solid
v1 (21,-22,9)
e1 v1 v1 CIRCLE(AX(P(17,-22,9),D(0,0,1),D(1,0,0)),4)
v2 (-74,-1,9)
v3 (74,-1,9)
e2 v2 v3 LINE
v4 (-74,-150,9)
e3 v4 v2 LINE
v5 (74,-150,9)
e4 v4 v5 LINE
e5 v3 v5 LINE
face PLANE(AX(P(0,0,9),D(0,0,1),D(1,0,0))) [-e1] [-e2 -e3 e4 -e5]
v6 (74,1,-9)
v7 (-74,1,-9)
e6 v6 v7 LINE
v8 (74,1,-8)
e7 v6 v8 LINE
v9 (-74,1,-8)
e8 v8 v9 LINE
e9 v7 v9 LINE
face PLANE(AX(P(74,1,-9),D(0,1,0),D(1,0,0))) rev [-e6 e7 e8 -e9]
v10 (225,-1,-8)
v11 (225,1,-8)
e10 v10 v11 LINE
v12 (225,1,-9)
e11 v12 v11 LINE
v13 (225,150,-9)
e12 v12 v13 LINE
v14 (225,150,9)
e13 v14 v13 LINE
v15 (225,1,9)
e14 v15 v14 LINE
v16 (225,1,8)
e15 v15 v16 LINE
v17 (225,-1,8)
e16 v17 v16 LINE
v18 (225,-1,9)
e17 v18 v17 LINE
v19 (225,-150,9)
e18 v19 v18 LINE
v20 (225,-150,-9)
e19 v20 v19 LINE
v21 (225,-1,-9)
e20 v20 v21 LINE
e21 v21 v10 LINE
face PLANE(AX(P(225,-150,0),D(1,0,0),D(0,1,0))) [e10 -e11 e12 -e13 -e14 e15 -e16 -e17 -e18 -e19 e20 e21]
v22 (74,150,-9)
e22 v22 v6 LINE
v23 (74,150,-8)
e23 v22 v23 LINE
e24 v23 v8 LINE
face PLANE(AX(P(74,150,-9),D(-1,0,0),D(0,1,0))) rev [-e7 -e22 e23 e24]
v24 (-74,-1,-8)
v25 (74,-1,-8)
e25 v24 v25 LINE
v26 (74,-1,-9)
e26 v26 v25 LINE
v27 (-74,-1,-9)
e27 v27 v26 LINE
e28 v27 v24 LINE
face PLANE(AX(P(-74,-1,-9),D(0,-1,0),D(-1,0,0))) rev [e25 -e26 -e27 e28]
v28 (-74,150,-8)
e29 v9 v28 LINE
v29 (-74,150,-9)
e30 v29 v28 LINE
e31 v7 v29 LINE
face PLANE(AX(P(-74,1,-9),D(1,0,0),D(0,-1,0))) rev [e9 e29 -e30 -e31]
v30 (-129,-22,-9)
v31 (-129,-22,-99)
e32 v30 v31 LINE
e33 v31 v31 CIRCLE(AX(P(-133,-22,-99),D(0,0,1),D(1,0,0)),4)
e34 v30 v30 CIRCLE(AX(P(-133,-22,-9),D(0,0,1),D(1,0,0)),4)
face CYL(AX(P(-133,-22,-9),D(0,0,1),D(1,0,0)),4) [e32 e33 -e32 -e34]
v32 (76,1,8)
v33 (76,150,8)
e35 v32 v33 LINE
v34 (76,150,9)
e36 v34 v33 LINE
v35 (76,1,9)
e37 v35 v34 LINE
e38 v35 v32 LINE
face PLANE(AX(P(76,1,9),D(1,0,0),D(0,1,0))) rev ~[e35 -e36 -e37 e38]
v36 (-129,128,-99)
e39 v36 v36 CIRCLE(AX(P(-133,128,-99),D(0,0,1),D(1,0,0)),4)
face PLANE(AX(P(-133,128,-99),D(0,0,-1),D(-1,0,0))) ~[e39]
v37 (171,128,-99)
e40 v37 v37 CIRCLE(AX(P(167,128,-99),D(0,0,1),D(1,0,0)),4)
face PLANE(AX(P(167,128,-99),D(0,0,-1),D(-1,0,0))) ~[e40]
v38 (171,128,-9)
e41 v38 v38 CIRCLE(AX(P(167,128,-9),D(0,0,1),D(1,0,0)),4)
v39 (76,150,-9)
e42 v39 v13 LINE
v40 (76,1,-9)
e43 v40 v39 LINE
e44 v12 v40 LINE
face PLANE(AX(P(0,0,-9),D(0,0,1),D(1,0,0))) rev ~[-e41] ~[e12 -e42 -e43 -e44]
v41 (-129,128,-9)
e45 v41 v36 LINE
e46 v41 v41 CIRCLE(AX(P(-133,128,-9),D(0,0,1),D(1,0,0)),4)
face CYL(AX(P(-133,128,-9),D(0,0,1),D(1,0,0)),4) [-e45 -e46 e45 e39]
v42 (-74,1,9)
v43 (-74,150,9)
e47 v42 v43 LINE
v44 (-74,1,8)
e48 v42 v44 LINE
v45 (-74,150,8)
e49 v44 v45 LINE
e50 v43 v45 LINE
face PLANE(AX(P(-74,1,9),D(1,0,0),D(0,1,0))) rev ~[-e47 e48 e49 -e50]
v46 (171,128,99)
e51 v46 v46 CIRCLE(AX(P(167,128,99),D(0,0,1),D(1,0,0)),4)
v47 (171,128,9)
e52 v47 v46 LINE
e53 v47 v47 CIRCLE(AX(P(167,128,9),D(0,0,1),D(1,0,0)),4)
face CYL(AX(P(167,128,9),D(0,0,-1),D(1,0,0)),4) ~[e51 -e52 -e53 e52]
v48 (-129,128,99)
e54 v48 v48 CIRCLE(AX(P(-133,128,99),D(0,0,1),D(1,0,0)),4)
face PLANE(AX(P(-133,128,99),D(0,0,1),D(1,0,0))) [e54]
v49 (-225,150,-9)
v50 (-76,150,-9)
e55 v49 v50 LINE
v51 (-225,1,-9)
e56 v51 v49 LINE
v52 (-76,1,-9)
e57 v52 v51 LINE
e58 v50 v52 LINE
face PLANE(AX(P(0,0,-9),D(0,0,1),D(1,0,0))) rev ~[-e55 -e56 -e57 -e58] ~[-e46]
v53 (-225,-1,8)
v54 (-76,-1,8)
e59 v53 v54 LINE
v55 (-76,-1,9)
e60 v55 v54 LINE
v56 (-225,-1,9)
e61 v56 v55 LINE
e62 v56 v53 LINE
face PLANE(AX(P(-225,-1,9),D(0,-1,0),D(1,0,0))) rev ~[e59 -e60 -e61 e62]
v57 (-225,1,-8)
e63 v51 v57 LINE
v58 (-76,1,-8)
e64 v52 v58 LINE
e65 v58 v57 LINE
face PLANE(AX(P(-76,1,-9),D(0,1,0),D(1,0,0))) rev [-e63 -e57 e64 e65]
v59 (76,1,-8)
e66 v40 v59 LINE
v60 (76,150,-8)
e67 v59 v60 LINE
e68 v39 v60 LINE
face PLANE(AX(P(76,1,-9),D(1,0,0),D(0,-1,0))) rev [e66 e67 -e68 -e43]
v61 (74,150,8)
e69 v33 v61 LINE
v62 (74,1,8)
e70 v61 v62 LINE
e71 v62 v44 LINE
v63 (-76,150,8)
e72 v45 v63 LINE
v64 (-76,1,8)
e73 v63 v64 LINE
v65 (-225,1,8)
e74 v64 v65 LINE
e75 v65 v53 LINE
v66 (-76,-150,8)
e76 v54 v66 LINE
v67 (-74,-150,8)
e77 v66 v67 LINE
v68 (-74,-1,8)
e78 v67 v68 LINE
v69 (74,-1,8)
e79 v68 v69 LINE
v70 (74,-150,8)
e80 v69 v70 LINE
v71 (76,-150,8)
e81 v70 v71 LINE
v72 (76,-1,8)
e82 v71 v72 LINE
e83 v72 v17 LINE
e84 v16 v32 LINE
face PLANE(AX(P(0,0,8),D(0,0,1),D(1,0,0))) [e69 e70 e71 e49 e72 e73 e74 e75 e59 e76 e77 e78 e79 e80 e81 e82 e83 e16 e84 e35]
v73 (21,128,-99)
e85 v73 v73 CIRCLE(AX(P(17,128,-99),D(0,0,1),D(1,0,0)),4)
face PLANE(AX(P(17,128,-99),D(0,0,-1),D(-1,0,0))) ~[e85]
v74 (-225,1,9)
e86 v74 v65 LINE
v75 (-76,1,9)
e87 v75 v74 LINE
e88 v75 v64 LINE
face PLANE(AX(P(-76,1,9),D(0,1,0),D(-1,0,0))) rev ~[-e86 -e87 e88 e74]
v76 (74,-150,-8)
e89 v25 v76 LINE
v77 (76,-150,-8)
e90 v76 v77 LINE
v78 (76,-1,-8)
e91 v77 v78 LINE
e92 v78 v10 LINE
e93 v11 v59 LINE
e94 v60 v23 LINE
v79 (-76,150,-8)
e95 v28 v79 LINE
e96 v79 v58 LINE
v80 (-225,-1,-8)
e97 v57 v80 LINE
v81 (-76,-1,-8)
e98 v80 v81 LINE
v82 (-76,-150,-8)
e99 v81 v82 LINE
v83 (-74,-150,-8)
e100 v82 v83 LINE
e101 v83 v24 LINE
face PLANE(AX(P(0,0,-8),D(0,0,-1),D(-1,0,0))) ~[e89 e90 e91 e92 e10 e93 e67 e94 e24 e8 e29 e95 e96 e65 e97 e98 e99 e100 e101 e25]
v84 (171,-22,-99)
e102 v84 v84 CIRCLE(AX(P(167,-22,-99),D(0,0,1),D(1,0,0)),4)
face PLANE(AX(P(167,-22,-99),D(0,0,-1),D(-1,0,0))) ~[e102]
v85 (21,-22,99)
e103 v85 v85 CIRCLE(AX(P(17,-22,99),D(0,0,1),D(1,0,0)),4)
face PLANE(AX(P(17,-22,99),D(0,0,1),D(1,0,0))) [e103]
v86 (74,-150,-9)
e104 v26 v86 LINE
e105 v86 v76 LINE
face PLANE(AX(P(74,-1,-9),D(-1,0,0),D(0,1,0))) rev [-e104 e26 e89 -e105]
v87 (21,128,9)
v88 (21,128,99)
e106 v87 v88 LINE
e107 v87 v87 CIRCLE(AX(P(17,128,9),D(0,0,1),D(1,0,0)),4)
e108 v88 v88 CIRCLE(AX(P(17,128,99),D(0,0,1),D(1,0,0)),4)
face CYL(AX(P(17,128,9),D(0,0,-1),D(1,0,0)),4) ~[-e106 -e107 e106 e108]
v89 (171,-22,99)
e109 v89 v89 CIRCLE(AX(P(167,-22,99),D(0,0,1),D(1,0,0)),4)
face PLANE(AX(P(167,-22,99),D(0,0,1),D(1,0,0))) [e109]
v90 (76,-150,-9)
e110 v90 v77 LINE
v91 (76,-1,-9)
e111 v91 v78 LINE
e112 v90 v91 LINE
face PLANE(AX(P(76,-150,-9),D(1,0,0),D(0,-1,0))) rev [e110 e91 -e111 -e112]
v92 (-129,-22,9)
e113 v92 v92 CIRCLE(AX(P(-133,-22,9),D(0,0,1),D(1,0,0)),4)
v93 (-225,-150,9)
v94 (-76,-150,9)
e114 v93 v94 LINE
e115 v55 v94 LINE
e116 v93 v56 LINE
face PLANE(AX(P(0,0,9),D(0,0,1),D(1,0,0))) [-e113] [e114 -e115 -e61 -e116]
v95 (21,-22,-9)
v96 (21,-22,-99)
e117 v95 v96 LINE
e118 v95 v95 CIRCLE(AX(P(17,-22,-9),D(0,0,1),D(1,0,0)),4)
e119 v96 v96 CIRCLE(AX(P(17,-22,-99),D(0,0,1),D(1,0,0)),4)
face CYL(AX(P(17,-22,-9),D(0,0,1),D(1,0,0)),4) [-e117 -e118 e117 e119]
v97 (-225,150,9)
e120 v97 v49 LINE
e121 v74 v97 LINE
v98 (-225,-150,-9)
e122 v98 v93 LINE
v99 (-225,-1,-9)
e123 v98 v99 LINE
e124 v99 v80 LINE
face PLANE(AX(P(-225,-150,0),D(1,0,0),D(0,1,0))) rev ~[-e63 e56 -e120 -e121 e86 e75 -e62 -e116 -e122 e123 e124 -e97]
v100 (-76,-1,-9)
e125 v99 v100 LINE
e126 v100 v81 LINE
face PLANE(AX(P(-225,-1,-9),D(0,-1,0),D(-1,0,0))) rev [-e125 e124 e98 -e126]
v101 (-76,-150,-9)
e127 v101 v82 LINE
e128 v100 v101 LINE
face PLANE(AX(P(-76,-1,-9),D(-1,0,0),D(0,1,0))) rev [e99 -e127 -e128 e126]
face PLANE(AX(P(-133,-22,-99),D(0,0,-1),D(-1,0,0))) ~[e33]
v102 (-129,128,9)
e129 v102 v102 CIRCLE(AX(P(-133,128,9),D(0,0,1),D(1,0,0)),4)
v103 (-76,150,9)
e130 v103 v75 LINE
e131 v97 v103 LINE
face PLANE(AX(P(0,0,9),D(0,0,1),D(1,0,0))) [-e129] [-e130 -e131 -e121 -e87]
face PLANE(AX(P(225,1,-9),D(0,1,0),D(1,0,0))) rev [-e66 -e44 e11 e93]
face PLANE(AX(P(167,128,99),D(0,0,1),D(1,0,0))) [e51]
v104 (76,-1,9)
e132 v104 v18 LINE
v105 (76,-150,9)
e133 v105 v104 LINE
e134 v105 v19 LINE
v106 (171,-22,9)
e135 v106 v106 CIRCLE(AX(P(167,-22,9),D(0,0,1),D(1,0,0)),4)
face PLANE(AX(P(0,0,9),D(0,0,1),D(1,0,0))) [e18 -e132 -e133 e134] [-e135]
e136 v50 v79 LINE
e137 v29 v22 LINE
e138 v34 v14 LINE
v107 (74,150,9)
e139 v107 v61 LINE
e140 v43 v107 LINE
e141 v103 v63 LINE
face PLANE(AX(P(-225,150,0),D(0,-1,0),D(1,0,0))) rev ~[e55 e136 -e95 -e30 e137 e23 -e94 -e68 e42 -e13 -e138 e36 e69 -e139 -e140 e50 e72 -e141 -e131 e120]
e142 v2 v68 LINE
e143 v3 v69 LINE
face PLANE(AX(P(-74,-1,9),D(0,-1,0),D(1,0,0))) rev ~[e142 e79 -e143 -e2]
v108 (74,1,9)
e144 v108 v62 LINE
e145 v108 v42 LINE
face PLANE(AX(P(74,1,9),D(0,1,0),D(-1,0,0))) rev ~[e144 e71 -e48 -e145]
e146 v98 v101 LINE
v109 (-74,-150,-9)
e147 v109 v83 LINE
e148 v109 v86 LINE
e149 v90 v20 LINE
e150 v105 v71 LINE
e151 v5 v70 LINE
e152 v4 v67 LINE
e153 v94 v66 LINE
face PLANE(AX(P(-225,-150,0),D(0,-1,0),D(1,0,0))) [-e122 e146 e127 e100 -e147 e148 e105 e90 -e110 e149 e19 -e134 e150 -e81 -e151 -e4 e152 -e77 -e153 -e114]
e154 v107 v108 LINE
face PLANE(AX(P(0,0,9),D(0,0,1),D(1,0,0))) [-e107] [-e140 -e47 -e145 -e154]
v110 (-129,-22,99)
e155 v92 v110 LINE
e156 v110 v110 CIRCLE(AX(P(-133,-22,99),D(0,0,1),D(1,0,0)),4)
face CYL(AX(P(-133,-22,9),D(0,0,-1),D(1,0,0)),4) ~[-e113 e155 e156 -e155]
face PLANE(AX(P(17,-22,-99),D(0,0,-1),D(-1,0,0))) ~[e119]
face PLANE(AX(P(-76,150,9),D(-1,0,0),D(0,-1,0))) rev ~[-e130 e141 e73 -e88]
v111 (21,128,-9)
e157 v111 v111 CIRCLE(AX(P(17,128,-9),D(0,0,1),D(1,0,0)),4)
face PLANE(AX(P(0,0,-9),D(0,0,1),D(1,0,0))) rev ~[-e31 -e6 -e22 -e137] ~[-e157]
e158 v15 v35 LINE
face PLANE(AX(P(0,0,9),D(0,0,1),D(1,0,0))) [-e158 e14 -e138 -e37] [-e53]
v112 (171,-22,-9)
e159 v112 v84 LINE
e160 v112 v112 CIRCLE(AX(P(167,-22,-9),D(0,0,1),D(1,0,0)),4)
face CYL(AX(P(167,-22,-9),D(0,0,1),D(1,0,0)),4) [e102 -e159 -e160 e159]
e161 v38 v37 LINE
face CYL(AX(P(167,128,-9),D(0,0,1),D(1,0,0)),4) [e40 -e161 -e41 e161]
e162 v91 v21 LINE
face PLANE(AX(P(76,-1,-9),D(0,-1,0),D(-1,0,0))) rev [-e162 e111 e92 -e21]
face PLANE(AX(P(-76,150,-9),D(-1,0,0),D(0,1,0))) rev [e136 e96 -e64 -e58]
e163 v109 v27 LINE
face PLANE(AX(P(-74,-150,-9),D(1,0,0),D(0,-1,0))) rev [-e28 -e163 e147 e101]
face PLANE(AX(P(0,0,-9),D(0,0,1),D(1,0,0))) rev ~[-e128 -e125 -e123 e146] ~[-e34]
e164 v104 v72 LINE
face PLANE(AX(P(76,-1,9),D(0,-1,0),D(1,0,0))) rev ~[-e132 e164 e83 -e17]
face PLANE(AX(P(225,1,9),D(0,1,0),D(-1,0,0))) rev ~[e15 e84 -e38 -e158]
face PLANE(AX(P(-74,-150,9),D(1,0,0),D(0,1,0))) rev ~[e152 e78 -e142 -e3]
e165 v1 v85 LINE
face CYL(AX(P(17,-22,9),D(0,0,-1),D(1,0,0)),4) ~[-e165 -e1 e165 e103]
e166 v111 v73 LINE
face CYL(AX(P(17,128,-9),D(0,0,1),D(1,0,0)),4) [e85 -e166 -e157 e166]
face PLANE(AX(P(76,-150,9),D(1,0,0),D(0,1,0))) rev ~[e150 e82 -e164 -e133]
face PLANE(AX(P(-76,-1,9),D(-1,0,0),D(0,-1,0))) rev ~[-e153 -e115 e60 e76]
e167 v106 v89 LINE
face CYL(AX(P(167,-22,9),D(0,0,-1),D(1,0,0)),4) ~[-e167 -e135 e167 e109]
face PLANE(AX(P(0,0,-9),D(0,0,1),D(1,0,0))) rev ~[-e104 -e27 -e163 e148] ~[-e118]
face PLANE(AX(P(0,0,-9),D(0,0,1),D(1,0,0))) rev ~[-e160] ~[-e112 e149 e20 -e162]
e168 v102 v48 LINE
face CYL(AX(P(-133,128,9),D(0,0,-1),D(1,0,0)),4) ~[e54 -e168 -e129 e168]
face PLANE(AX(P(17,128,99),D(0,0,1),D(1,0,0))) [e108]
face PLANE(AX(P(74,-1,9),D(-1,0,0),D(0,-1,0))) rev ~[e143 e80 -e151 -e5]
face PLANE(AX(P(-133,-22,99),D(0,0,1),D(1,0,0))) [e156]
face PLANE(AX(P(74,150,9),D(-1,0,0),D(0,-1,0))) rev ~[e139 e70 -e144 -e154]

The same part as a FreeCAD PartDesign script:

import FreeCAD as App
import Part
import Sketcher
from FreeCAD import Vector


def add_polygon(sketch, points):
    """Adds a closed chain of lines whose ends are joined by coincident constraints."""
    first, n = sketch.GeometryCount, len(points)
    for a, b in zip(points, points[1:] + points[:1]):
        sketch.addGeometry(Part.LineSegment(App.Vector(*a, 0), App.Vector(*b, 0)), False)
    for i in range(n):
        sketch.addConstraint(Sketcher.Constraint("Coincident", first + i, 2, first + (i + 1) % n, 1))

doc = App.newDocument("Part")
body = doc.addObject("PartDesign::Body", "Body")

sketch1 = body.newObject("Sketcher::SketchObject", "Sketch")
sketch1.AttachmentSupport = (doc.getObject("XY_Plane"), [""])
sketch1.MapMode = "FlatFace"
add_polygon(sketch1, [(-225, 150), (-225, -150), (225, -150), (225, 150)])
sketch1.addConstraint([
    Sketcher.Constraint("Vertical", 0),
    Sketcher.Constraint("Horizontal", 1),
    Sketcher.Constraint("Vertical", 2),
    Sketcher.Constraint("Horizontal", 3),
    Sketcher.Constraint("Symmetric", 0, 2, 2, 2, -1, 1),
    Sketcher.Constraint("DistanceX", 1, 1, 1, 2, 450.0),
    Sketcher.Constraint("DistanceY", 0, 2, 0, 1, 300.0),
])
pad1 = body.newObject("PartDesign::Pad", "Pad")
pad1.Profile = sketch1
pad1.Length = 18
pad1.Midplane = True

sketch2 = body.newObject("Sketcher::SketchObject", "Sketch001")
sketch2.AttachmentSupport = (doc.getObject("XY_Plane"), [""])
sketch2.MapMode = "FlatFace"
sketch2.AttachmentOffset = App.Placement(Vector(0, 0, 9), App.Rotation())
add_polygon(sketch2, [(-225, 1), (-225, -1), (-76, -1), (-76, -150), (-74, -150), (-74, -1), (74, -1), (74, -150), (76, -150), (76, -1), (225, -1), (225, 1), (76, 1), (76, 150), (74, 150), (74, 1), (-74, 1), (-74, 150), (-76, 150), (-76, 1)])
sketch2.addConstraint([
    Sketcher.Constraint("Vertical", 0),
    Sketcher.Constraint("Horizontal", 1),
    Sketcher.Constraint("Vertical", 2),
    Sketcher.Constraint("Horizontal", 3),
    Sketcher.Constraint("Vertical", 4),
    Sketcher.Constraint("Horizontal", 5),
    Sketcher.Constraint("Vertical", 6),
    Sketcher.Constraint("Horizontal", 7),
    Sketcher.Constraint("Vertical", 8),
    Sketcher.Constraint("Horizontal", 9),
    Sketcher.Constraint("Vertical", 10),
    Sketcher.Constraint("Horizontal", 11),
    Sketcher.Constraint("Vertical", 12),
    Sketcher.Constraint("Horizontal", 13),
    Sketcher.Constraint("Vertical", 14),
    Sketcher.Constraint("Horizontal", 15),
    Sketcher.Constraint("Vertical", 16),
    Sketcher.Constraint("Horizontal", 17),
    Sketcher.Constraint("Vertical", 18),
    Sketcher.Constraint("Horizontal", 19),
    Sketcher.Constraint("Symmetric", 0, 2, 10, 2, -1, 1),
    Sketcher.Constraint("Symmetric", 2, 2, 12, 2, -1, 1),
    Sketcher.Constraint("Symmetric", 4, 2, 14, 2, -1, 1),
    Sketcher.Constraint("Symmetric", 6, 2, 16, 2, -1, 1),
    Sketcher.Constraint("Symmetric", 8, 2, 18, 2, -1, 1),
    Sketcher.Constraint("Symmetric", 3, 2, 6, 2, -2),
    Sketcher.Constraint("Symmetric", 1, 2, 8, 2, -2),
    Sketcher.Constraint("Horizontal", 1, 2, 4, 2),
    Sketcher.Constraint("Equal", 17, 0),
    Sketcher.Constraint("Equal", 19, 2),
    Sketcher.Constraint("DistanceX", 1, 1, 1, 2, 149.0),
    Sketcher.Constraint("DistanceX", 3, 1, 3, 2, 2.0),
    Sketcher.Constraint("DistanceX", 5, 1, 5, 2, 148.0),
])
pocket1 = body.newObject("PartDesign::Pocket", "Pocket")
pocket1.Profile = sketch2
pocket1.Length = 1

sketch3 = body.newObject("Sketcher::SketchObject", "Sketch002")
sketch3.AttachmentSupport = (doc.getObject("XY_Plane"), [""])
sketch3.MapMode = "FlatFace"
sketch3.AttachmentOffset = App.Placement(Vector(0, 0, 9), App.Rotation())
sketch3.addGeometry([
    Part.Circle(Vector(-133, 128, 0), Vector(0, 0, 1), 4),
    Part.Circle(Vector(17, 128, 0), Vector(0, 0, 1), 4),
    Part.Circle(Vector(167, 128, 0), Vector(0, 0, 1), 4),
    Part.Circle(Vector(17, -22, 0), Vector(0, 0, 1), 4),
    Part.Circle(Vector(167, -22, 0), Vector(0, 0, 1), 4),
    Part.Circle(Vector(-133, -22, 0), Vector(0, 0, 1), 4),
], False)
sketch3.addConstraint([
    Sketcher.Constraint("Equal", 0, 1),
    Sketcher.Constraint("Equal", 1, 2),
    Sketcher.Constraint("Equal", 2, 3),
    Sketcher.Constraint("Equal", 3, 4),
    Sketcher.Constraint("Equal", 4, 5),
    Sketcher.Constraint("Horizontal", 0, 3, 1, 3),
    Sketcher.Constraint("Horizontal", 1, 3, 2, 3),
    Sketcher.Constraint("Horizontal", 3, 3, 4, 3),
    Sketcher.Constraint("Horizontal", 4, 3, 5, 3),
    Sketcher.Constraint("Vertical", 1, 3, 3, 3),
    Sketcher.Constraint("Vertical", 2, 3, 4, 3),
    Sketcher.Constraint("Vertical", 0, 3, 5, 3),
    Sketcher.Constraint("Diameter", 0, 8.0),
    Sketcher.Constraint("DistanceX", 0, 3, -1, 1, 133.0),
    Sketcher.Constraint("DistanceY", -1, 1, 0, 3, 128.0),
    Sketcher.Constraint("DistanceX", -1, 1, 1, 3, 17.0),
    Sketcher.Constraint("DistanceX", -1, 1, 2, 3, 167.0),
    Sketcher.Constraint("DistanceY", 3, 3, -1, 1, 22.0),
])
pad2 = body.newObject("PartDesign::Pad", "Pad001")
pad2.Profile = sketch3
pad2.Length = 90
doc.recompute()

mirrored = body.newObject("PartDesign::Mirrored", "Mirrored")
mirrored.Originals = [pocket1, pad2]
mirrored.MirrorPlane = (doc.getObject("XY_Plane"), [""])
body.Tip = mirrored

doc.recompute()
